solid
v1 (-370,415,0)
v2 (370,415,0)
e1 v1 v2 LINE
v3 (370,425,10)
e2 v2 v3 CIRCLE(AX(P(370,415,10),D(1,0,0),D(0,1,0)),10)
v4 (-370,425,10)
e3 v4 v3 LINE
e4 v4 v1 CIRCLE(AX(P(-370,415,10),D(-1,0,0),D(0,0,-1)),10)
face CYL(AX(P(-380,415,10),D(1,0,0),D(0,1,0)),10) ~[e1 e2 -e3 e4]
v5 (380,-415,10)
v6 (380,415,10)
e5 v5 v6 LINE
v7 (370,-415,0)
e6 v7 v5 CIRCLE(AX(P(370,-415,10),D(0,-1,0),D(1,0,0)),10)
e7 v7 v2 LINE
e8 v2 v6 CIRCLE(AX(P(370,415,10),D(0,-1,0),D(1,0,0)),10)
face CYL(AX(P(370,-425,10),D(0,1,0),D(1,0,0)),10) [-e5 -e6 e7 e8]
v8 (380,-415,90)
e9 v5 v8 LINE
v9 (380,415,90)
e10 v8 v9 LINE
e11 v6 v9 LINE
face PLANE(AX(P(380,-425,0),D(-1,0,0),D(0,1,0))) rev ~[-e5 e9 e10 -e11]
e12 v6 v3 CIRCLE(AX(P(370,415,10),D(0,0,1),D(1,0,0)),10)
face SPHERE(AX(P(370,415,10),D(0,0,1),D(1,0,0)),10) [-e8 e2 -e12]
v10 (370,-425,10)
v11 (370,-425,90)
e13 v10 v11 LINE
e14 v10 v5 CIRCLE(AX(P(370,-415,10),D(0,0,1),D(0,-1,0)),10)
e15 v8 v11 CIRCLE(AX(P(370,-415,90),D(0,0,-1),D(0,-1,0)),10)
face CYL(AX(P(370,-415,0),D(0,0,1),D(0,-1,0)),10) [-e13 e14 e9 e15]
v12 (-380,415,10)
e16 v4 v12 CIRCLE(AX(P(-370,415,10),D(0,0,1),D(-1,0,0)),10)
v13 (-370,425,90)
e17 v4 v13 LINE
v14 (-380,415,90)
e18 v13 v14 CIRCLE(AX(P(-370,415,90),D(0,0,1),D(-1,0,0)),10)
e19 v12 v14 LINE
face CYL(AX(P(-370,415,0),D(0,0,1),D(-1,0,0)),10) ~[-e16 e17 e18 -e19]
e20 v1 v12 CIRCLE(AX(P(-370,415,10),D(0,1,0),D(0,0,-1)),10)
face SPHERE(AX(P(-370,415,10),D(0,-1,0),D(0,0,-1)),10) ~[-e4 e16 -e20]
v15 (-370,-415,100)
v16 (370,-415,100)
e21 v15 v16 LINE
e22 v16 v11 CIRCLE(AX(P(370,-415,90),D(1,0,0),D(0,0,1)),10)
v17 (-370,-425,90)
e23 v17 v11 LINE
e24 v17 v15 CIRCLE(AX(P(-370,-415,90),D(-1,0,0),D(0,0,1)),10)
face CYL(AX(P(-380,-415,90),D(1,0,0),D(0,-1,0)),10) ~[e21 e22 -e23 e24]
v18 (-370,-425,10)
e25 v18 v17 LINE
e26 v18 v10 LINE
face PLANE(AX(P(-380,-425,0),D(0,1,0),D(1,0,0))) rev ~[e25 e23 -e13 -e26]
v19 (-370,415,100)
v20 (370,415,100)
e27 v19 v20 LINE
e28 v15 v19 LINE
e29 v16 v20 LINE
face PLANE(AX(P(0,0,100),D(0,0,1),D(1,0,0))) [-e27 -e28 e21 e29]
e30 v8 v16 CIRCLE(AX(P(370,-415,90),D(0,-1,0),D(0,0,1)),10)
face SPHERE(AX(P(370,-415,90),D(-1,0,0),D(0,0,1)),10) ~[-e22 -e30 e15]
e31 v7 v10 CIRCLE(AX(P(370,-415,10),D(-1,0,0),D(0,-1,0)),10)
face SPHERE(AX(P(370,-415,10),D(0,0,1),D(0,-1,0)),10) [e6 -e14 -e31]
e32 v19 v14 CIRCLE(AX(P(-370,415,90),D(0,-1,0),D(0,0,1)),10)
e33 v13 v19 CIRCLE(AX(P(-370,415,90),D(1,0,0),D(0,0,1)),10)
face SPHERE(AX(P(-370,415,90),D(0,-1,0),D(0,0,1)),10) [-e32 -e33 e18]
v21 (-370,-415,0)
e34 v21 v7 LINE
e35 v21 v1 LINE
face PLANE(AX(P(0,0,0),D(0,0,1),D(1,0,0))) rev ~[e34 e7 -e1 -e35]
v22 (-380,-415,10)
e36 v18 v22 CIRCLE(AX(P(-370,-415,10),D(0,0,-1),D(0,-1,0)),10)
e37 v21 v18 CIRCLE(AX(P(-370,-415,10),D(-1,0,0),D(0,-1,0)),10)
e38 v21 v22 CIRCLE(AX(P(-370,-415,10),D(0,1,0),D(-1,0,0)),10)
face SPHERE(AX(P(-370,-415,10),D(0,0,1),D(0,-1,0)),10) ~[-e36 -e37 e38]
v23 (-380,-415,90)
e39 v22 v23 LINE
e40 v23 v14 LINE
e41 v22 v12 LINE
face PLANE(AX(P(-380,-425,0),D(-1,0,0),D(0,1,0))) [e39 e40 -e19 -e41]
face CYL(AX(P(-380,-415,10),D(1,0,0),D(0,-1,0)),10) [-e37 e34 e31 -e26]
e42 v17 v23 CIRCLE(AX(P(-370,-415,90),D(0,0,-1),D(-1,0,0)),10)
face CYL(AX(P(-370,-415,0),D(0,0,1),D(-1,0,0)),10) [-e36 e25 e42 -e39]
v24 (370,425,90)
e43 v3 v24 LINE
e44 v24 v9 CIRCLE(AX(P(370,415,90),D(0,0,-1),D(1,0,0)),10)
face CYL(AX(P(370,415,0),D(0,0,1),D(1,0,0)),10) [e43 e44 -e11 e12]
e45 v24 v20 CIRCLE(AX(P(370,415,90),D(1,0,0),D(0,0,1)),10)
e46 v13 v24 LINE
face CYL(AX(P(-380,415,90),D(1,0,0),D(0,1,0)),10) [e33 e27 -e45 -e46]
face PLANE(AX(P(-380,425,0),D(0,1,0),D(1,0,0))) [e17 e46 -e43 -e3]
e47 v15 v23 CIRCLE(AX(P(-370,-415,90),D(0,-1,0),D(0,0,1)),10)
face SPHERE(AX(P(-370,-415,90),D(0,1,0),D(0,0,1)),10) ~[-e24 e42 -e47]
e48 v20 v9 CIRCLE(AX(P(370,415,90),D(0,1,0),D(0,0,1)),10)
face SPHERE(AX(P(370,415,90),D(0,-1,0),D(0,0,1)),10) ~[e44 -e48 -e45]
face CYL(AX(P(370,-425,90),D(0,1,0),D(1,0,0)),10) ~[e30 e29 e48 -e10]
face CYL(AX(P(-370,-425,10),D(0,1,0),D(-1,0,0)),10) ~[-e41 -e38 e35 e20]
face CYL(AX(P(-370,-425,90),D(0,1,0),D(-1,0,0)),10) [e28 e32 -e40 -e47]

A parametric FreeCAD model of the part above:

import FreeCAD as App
import Part
import Sketcher
from FreeCAD import Vector
Q = App.Units.Quantity


def add_polygon(sketch, points):
    """Adds a closed chain of lines whose ends are joined by coincident constraints."""
    first, n = sketch.GeometryCount, len(points)
    for a, b in zip(points, points[1:] + points[:1]):
        sketch.addGeometry(Part.LineSegment(App.Vector(*a, 0), App.Vector(*b, 0)), False)
    for i in range(n):
        sketch.addConstraint(Sketcher.Constraint("Coincident", first + i, 2, first + (i + 1) % n, 1))

doc = App.newDocument("Part")
body = doc.addObject("PartDesign::Body", "Body")

sketch1 = body.newObject("Sketcher::SketchObject", "Sketch")
sketch1.AttachmentSupport = (doc.getObject("XY_Plane"), [""])
sketch1.MapMode = "FlatFace"
add_polygon(sketch1, [(-380, 425), (-380, -425), (380, -425), (380, 425)])
sketch1.addConstraint([
    Sketcher.Constraint("Vertical", 0),
    Sketcher.Constraint("Horizontal", 1),
    Sketcher.Constraint("Vertical", 2),
    Sketcher.Constraint("Horizontal", 3),
    Sketcher.Constraint("Symmetric", 0, 2, 2, 2, -1, 1),
    Sketcher.Constraint("DistanceX", 1, 1, 1, 2, Q("760 mm")),
    Sketcher.Constraint("DistanceY", 0, 2, 0, 1, Q("850 mm")),
])
pad1 = body.newObject("PartDesign::Pad", "Pad")
pad1.Profile = sketch1
pad1.Length = 100
doc.recompute()

fillet = body.newObject("PartDesign::Fillet", "Fillet")
fillet.Base = (pad1, ["Edge1"])
fillet.UseAllEdges = True
fillet.Radius = 10

doc.recompute()
